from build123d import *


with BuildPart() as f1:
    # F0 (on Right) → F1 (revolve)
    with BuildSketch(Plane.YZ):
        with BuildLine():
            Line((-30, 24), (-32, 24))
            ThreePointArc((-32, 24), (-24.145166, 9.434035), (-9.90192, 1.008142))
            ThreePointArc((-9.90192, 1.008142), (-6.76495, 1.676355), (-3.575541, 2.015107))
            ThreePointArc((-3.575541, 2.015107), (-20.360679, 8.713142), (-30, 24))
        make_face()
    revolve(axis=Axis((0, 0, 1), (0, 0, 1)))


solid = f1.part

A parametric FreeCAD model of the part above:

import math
import FreeCAD as App
import Part
import Sketcher
Q = App.Units.Quantity

doc = App.newDocument("Part")
params = doc.addObject("Spreadsheet::Sheet", "Params")
for row, (alias, value) in enumerate([
    ("sketch1_width", "2 mm"),
    ("revolution_angle", "360 deg"),
], start=1):
    params.set(f"A{row}", alias)
    params.set(f"B{row}", "=" + value)
    params.setAlias(f"B{row}", alias)

body = doc.addObject("PartDesign::Body", "Body")

# Sketch on YZ plane
sketch1 = body.newObject("Sketcher::SketchObject", "Sketch")
sketch1.AttachmentSupport = (doc.getObject("YZ_Plane"), [""])
sketch1.MapMode = "FlatFace"
sketch1.addGeometry([
    Part.LineSegment(App.Vector(-30, 24, 0), App.Vector(-32, 24, 0)),
    Part.ArcOfCircle(Part.Circle(App.Vector(-1.9, 30.9, 0), App.Vector(0, 0, 1), 30.9), math.radians(-167), math.radians(-105)),
    Part.ArcOfCircle(Part.Circle(App.Vector(-1.9, -28.8, 0), App.Vector(0, 0, 1), 30.8), math.radians(93.08), math.radians(105.01)),
    Part.ArcOfCircle(Part.Circle(App.Vector(-1.7, 31.2, 0), App.Vector(0, 0, 1), 29.2), math.radians(-166), math.radians(-94)),
], False)
sketch1.addConstraint([
    Sketcher.Constraint("Coincident", 0, 2, 1, 1),
    Sketcher.Constraint("Coincident", 1, 2, 2, 2),
    Sketcher.Constraint("Coincident", 2, 1, 3, 2),
    Sketcher.Constraint("Coincident", 3, 1, 0, 1),
    Sketcher.Constraint("Horizontal", 0),
    Sketcher.Constraint("DistanceX", 0, 2, 0, 1, Q("2 mm")),
    Sketcher.Constraint("DistanceX", 0, 2, -1, 1, Q("32 mm")),
    Sketcher.Constraint("DistanceY", -1, 1, 0, 2, Q("24 mm")),
    Sketcher.Constraint("Radius", 1, Q("30.907856 mm")),
    Sketcher.Constraint("Radius", 2, Q("30.835835 mm")),
    Sketcher.Constraint("Radius", 3, Q("29.232214 mm")),
    Sketcher.Constraint("DistanceX", 2, 3, -1, 1, Q("1.91785 mm")),
    Sketcher.Constraint("DistanceY", 2, 3, -1, 1, Q("28.776139 mm")),
    Sketcher.Constraint("DistanceX", 3, 3, -1, 1, Q("1.664489 mm")),
    Sketcher.Constraint("DistanceX", 1, 2, -1, 1, Q("9.90192 mm")),
])
sketch1.setExpression("Constraints[5]", "Params.sketch1_width")
revolution = body.newObject("PartDesign::Revolution", "Revolution")
revolution.Profile = sketch1
revolution.ReferenceAxis = (sketch1, ["V_Axis"])
revolution.setExpression("Angle", "Params.revolution_angle")

doc.recompute()
